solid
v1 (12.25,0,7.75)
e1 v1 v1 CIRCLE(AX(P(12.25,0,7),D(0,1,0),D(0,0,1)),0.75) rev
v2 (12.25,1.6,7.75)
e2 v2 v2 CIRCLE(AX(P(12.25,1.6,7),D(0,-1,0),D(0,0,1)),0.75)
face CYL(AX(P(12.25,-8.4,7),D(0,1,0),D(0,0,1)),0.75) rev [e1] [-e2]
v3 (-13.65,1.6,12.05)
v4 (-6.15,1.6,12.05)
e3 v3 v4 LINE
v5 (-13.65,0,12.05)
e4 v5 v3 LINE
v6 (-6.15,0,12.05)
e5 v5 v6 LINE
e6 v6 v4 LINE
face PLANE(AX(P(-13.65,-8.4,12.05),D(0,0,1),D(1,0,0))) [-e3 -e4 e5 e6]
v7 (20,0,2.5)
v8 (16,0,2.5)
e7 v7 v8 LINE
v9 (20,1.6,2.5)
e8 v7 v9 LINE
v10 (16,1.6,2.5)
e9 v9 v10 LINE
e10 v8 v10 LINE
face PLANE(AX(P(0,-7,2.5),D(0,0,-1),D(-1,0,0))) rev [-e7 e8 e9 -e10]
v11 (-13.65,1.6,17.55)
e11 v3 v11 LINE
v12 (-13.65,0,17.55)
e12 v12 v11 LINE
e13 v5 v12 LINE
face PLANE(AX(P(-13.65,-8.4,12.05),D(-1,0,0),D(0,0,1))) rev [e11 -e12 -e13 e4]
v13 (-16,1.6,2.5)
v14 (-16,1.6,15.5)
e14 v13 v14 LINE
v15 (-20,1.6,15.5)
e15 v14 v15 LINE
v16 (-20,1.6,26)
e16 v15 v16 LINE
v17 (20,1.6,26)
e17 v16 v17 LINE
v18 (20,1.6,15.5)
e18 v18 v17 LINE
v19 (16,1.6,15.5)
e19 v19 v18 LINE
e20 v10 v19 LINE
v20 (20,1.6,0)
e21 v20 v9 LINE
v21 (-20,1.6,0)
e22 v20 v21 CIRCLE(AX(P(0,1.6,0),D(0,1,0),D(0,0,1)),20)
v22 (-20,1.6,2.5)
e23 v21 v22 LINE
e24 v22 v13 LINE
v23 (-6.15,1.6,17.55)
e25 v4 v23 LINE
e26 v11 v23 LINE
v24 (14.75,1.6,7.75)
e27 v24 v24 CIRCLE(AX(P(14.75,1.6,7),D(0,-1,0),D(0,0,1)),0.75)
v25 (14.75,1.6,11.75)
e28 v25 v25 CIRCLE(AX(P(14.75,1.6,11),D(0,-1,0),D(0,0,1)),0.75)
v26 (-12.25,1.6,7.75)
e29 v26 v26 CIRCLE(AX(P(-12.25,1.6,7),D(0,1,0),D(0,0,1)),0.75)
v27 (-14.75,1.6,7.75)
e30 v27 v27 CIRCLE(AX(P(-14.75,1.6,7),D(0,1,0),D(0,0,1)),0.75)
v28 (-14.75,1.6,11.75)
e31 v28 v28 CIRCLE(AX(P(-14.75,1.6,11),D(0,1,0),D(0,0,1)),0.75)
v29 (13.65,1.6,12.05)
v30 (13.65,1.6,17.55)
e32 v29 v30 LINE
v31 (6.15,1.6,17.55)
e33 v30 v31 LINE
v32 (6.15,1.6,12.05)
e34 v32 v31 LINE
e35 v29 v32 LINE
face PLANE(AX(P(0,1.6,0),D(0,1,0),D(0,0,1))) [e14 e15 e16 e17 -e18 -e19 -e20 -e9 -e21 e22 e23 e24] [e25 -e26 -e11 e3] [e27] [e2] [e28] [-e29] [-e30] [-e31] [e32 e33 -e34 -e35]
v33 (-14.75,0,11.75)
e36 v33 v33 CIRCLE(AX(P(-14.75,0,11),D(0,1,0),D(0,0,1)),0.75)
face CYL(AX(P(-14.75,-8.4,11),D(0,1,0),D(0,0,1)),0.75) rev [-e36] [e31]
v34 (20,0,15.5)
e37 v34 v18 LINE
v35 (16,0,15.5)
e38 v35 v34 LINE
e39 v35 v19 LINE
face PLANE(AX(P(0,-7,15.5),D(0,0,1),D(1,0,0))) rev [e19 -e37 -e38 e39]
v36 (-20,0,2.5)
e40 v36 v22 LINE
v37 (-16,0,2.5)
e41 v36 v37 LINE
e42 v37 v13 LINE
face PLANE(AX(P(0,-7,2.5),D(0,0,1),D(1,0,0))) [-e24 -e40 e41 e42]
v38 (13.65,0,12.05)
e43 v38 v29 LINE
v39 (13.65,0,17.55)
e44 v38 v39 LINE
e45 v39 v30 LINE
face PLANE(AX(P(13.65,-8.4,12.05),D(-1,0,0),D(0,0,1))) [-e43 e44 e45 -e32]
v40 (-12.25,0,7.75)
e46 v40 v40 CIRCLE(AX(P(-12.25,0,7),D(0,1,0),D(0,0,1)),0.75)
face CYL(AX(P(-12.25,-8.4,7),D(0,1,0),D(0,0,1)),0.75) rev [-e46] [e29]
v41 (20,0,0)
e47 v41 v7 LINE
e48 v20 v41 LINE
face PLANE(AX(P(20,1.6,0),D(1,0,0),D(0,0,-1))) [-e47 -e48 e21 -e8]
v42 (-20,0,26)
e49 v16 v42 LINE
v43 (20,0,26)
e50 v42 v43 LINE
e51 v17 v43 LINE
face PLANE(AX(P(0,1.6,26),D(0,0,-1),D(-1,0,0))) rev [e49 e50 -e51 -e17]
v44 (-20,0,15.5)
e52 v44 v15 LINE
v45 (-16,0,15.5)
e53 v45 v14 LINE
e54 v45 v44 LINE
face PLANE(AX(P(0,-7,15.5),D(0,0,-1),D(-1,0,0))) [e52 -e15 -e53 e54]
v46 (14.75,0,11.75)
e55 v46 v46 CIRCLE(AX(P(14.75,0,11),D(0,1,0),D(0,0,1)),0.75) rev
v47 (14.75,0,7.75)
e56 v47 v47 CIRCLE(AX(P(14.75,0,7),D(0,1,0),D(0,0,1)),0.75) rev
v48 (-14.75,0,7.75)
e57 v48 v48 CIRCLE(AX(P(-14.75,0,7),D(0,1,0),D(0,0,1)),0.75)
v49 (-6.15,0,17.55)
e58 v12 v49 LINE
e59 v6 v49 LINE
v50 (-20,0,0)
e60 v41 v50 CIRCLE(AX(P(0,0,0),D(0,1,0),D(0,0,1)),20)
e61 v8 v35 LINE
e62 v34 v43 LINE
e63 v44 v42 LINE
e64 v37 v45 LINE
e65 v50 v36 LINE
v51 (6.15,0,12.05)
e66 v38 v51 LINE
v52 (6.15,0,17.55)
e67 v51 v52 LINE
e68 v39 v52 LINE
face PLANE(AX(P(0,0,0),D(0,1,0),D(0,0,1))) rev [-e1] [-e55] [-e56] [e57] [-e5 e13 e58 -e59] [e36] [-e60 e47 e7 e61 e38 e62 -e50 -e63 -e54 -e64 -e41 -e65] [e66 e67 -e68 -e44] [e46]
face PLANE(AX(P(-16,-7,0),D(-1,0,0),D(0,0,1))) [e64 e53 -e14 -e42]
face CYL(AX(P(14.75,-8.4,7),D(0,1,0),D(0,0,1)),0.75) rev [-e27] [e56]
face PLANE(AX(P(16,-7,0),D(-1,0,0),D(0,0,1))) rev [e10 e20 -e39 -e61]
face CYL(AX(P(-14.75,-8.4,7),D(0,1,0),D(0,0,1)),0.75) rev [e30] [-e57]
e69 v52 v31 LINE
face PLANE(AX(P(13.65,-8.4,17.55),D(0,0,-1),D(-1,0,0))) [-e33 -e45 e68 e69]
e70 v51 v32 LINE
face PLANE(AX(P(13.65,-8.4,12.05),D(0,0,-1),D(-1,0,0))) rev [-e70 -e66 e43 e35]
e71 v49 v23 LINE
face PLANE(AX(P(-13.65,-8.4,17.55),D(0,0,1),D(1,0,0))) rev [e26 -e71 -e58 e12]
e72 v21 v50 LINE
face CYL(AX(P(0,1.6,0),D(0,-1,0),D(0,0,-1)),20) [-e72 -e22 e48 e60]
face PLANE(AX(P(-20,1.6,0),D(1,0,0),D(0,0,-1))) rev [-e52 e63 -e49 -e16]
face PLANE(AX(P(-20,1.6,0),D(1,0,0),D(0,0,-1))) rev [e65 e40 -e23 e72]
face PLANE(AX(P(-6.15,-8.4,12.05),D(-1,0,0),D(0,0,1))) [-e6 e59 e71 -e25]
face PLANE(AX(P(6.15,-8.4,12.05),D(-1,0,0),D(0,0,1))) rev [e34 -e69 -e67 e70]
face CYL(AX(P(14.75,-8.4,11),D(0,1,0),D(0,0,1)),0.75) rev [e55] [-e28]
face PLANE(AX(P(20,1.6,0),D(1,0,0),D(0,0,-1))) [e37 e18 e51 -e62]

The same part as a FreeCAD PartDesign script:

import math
import FreeCAD as App
import Part
import Sketcher
from FreeCAD import Vector

doc = App.newDocument("Part")
body = doc.addObject("PartDesign::Body", "Body")

sketch1 = doc.addObject("Sketcher::SketchObject", "Sketch")
body.addObject(sketch1)
sketch1.AttachmentSupport = (doc.XZ_Plane, [""])
sketch1.MapMode = "FlatFace"
sketch1.addGeometry([
    Part.LineSegment(Vector(20, 26, 0), Vector(20, 0, 0)),
    Part.ArcOfCircle(Part.Circle(Vector(0, 0, 0), Vector(0, 0, 1), 20), math.radians(180), math.radians(360)),
    Part.LineSegment(Vector(-20, 0, 0), Vector(-20, 26, 0)),
    Part.LineSegment(Vector(-20, 26, 0), Vector(20, 26, 0)),
], False)
sketch1.addConstraint([
    Sketcher.Constraint("Tangent", 0, 2, 1, 2),
    Sketcher.Constraint("Tangent", 1, 1, 2, 1),
    Sketcher.Constraint("Coincident", 2, 2, 3, 1),
    Sketcher.Constraint("Coincident", 3, 2, 0, 1),
    Sketcher.Constraint("Vertical", 0),
    Sketcher.Constraint("Vertical", 2),
    Sketcher.Constraint("Horizontal", 3),
    Sketcher.Constraint("Coincident", 1, 3, -1, 1),
    Sketcher.Constraint("Radius", 1, 20.0),
    Sketcher.Constraint("DistanceY", 0, 2, 0, 1, 26.0),
])
pad1 = doc.addObject("PartDesign::Pad", "Pad")
body.addObject(pad1)
pad1.Profile = sketch1
pad1.Length = 1.6
pad1.Reversed = True

sketch2 = doc.addObject("Sketcher::SketchObject", "Sketch001")
body.addObject(sketch2)
sketch2.AttachmentSupport = (doc.XZ_Plane, [""])
sketch2.MapMode = "FlatFace"
sketch2.AttachmentOffset = App.Placement(Vector(0, 0, -3), App.Rotation())
sketch2.addGeometry([
    Part.LineSegment(Vector(-20, 2.5, 0), Vector(-20, 15.5, 0)),
    Part.LineSegment(Vector(-20, 15.5, 0), Vector(-16, 15.5, 0)),
    Part.LineSegment(Vector(-16, 15.5, 0), Vector(-16, 2.5, 0)),
    Part.LineSegment(Vector(-16, 2.5, 0), Vector(-20, 2.5, 0)),
    Part.LineSegment(Vector(16, 2.5, 0), Vector(16, 15.5, 0)),
    Part.LineSegment(Vector(16, 15.5, 0), Vector(20, 15.5, 0)),
    Part.LineSegment(Vector(20, 15.5, 0), Vector(20, 2.5, 0)),
    Part.LineSegment(Vector(20, 2.5, 0), Vector(16, 2.5, 0)),
], False)
sketch2.addConstraint([
    Sketcher.Constraint("Coincident", 0, 2, 1, 1),
    Sketcher.Constraint("Coincident", 1, 2, 2, 1),
    Sketcher.Constraint("Coincident", 2, 2, 3, 1),
    Sketcher.Constraint("Coincident", 3, 2, 0, 1),
    Sketcher.Constraint("Coincident", 4, 2, 5, 1),
    Sketcher.Constraint("Coincident", 5, 2, 6, 1),
    Sketcher.Constraint("Coincident", 6, 2, 7, 1),
    Sketcher.Constraint("Coincident", 7, 2, 4, 1),
    Sketcher.Constraint("Vertical", 0),
    Sketcher.Constraint("Horizontal", 1),
    Sketcher.Constraint("Vertical", 2),
    Sketcher.Constraint("Horizontal", 3),
    Sketcher.Constraint("Vertical", 4),
    Sketcher.Constraint("Horizontal", 5),
    Sketcher.Constraint("Vertical", 6),
    Sketcher.Constraint("Horizontal", 7),
    Sketcher.Constraint("Symmetric", 1, 2, 4, 2, -2),
    Sketcher.Constraint("Symmetric", 3, 2, 6, 2, -2),
    Sketcher.Constraint("DistanceX", 1, 1, 1, 2, 4.0),
    Sketcher.Constraint("DistanceY", 0, 1, 0, 2, 13.0),
    Sketcher.Constraint("DistanceX", 0, 2, -1, 1, 20.0),
    Sketcher.Constraint("DistanceY", -1, 1, 0, 2, 15.5),
])
pocket1 = doc.addObject("PartDesign::Pocket", "Pocket")
body.addObject(pocket1)
pocket1.Profile = sketch2
pocket1.Length = 10
pocket1.Reversed = True

sketch3 = doc.addObject("Sketcher::SketchObject", "Sketch002")
body.addObject(sketch3)
sketch3.AttachmentSupport = (doc.XZ_Plane, [""])
sketch3.MapMode = "FlatFace"
sketch3.AttachmentOffset = App.Placement(Vector(0, 0, -1.6), App.Rotation())
sketch3.addGeometry([
    Part.LineSegment(Vector(-13.65, 12.05, 0), Vector(-13.65, 17.55, 0)),
    Part.LineSegment(Vector(-13.65, 17.55, 0), Vector(-6.15, 17.55, 0)),
    Part.LineSegment(Vector(-6.15, 17.55, 0), Vector(-6.15, 12.05, 0)),
    Part.LineSegment(Vector(-6.15, 12.05, 0), Vector(-13.65, 12.05, 0)),
], False)
sketch3.addConstraint([
    Sketcher.Constraint("Coincident", 0, 2, 1, 1),
    Sketcher.Constraint("Coincident", 1, 2, 2, 1),
    Sketcher.Constraint("Coincident", 2, 2, 3, 1),
    Sketcher.Constraint("Coincident", 3, 2, 0, 1),
    Sketcher.Constraint("Vertical", 0),
    Sketcher.Constraint("Horizontal", 1),
    Sketcher.Constraint("Vertical", 2),
    Sketcher.Constraint("Horizontal", 3),
    Sketcher.Constraint("DistanceX", 1, 1, 1, 2, 7.5),
    Sketcher.Constraint("DistanceY", 0, 1, 0, 2, 5.5),
    Sketcher.Constraint("DistanceX", 0, 2, -1, 1, 13.65),
    Sketcher.Constraint("DistanceY", -1, 1, 0, 2, 17.55),
])
pocket2 = doc.addObject("PartDesign::Pocket", "Pocket001")
body.addObject(pocket2)
pocket2.Profile = sketch3
pocket2.Length = 10
pocket2.Reversed = True
doc.recompute()

mirrored = doc.addObject("PartDesign::Mirrored", "Mirrored")
body.addObject(mirrored)
mirrored.Originals = [pocket2]
mirrored.MirrorPlane = (doc.YZ_Plane, [""])
body.Tip = mirrored

sketch4 = doc.addObject("Sketcher::SketchObject", "Sketch003")
body.addObject(sketch4)
sketch4.AttachmentSupport = (doc.XZ_Plane, [""])
sketch4.MapMode = "FlatFace"
sketch4.AttachmentOffset = App.Placement(Vector(0, 0, -1.6), App.Rotation())
sketch4.addGeometry([
    Part.Circle(Vector(-14.75, 7, 0), Vector(0, 0, 1), 0.75),
    Part.Circle(Vector(-14.75, 11, 0), Vector(0, 0, 1), 0.75),
    Part.Circle(Vector(-12.25, 7, 0), Vector(0, 0, 1), 0.75),
], False)
sketch4.addConstraint([
    Sketcher.Constraint("Equal", 0, 1),
    Sketcher.Constraint("Equal", 1, 2),
    Sketcher.Constraint("Horizontal", 0, 3, 2, 3),
    Sketcher.Constraint("Vertical", 0, 3, 1, 3),
    Sketcher.Constraint("Diameter", 0, 1.5),
    Sketcher.Constraint("DistanceY", -1, 1, 0, 3, 7.0),
    Sketcher.Constraint("DistanceY", -1, 1, 1, 3, 11.0),
    Sketcher.Constraint("DistanceX", 0, 3, 2, 3, 2.5),
    Sketcher.Constraint("DistanceX", 0, 3, -1, 1, 14.75),
])
pocket3 = doc.addObject("PartDesign::Pocket", "Pocket002")
body.addObject(pocket3)
pocket3.Profile = sketch4
pocket3.Length = 10
pocket3.Reversed = True
doc.recompute()

mirrored2 = doc.addObject("PartDesign::Mirrored", "Mirrored001")
body.addObject(mirrored2)
mirrored2.Originals = [pocket3]
mirrored2.MirrorPlane = (doc.YZ_Plane, [""])
body.Tip = mirrored2

doc.recompute()
